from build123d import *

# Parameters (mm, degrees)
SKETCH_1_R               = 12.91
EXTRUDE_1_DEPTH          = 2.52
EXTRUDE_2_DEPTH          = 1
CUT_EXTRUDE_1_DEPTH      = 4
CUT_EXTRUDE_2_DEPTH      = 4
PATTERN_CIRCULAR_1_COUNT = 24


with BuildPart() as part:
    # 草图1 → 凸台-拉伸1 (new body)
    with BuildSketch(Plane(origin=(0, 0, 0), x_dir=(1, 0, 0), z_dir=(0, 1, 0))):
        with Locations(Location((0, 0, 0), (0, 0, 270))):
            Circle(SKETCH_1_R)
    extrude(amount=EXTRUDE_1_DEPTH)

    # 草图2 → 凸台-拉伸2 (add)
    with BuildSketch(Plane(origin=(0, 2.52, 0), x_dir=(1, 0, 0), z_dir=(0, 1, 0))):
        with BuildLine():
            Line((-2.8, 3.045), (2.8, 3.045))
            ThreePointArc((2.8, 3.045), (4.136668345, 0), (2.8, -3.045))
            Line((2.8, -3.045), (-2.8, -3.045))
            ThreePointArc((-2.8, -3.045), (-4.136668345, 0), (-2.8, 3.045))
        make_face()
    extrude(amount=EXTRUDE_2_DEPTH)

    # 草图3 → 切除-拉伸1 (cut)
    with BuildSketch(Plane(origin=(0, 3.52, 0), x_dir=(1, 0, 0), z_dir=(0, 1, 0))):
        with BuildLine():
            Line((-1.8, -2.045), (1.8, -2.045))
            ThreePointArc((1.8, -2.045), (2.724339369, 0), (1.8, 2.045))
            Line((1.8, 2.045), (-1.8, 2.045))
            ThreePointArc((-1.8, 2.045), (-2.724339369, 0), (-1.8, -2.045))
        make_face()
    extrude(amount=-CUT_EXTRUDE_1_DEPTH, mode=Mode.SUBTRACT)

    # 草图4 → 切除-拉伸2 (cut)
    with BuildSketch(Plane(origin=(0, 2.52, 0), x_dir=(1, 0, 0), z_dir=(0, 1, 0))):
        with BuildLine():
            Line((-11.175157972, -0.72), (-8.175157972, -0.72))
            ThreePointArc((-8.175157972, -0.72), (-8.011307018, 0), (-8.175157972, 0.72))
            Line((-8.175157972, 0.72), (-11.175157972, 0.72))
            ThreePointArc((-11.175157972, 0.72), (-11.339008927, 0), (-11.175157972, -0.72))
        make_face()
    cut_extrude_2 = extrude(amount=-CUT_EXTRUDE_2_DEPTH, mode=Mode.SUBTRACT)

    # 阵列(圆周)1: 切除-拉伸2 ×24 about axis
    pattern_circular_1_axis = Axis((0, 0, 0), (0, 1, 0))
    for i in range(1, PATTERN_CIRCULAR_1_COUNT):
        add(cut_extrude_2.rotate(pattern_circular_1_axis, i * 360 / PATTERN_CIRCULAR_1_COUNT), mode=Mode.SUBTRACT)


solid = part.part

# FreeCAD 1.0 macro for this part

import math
import FreeCAD as App
import Part
import Sketcher
from FreeCAD import Vector
Q = App.Units.Quantity

doc = App.newDocument("Part")
body = doc.addObject("PartDesign::Body", "Body")

# Sketch on XZ plane
sketch1 = body.newObject("Sketcher::SketchObject", "Sketch")
sketch1.AttachmentSupport = (doc.getObject("XZ_Plane"), [""])
sketch1.MapMode = "FlatFace"
sketch1.addGeometry(Part.Circle(Vector(0, 0, 0), Vector(0, 0, 1), 13), False)
sketch1.addConstraint([
    Sketcher.Constraint("Coincident", 0, 3, -1, 1),
    Sketcher.Constraint("Diameter", 0, Q("25.82 mm")),
])
pad1 = body.newObject("PartDesign::Pad", "Pad")
pad1.Profile = sketch1
pad1.Length = 2.52
pad1.Reversed = True

# Sketch on XZ plane
sketch2 = body.newObject("Sketcher::SketchObject", "Sketch001")
sketch2.AttachmentSupport = (doc.getObject("XZ_Plane"), [""])
sketch2.MapMode = "FlatFace"
sketch2.AttachmentOffset = App.Placement(Vector(0, 0, -2.52), App.Rotation())
sketch2.addGeometry([
    Part.LineSegment(Vector(2.8, -3, 0), Vector(-2.8, -3, 0)),
    Part.ArcOfCircle(Part.Circle(Vector(0, 0, 0), Vector(0, 0, 1), 4.1), math.radians(133), math.radians(227)),
    Part.LineSegment(Vector(-2.8, 3, 0), Vector(2.8, 3, 0)),
    Part.ArcOfCircle(Part.Circle(Vector(0, 0, 0), Vector(0, 0, 1), 4.1), math.radians(-47), math.radians(47)),
], False)
sketch2.addConstraint([
    Sketcher.Constraint("Coincident", 0, 2, 1, 2),
    Sketcher.Constraint("Coincident", 1, 1, 2, 1),
    Sketcher.Constraint("Coincident", 2, 2, 3, 2),
    Sketcher.Constraint("Coincident", 3, 1, 0, 1),
    Sketcher.Constraint("Horizontal", 0),
    Sketcher.Constraint("Horizontal", 2),
    Sketcher.Constraint("Coincident", 1, 3, -1, 1),
    Sketcher.Constraint("Coincident", 3, 3, -1, 1),
    Sketcher.Constraint("Equal", 1, 3),
    Sketcher.Constraint("Vertical", 0, 2, 1, 1),
    Sketcher.Constraint("DistanceX", 0, 2, 0, 1, Q("5.6 mm")),
    Sketcher.Constraint("Radius", 1, Q("4.136668 mm")),
])
pad2 = body.newObject("PartDesign::Pad", "Pad001")
pad2.Profile = sketch2
pad2.Length = 1
pad2.Reversed = True

# Sketch on XZ plane
sketch3 = body.newObject("Sketcher::SketchObject", "Sketch002")
sketch3.AttachmentSupport = (doc.getObject("XZ_Plane"), [""])
sketch3.MapMode = "FlatFace"
sketch3.AttachmentOffset = App.Placement(Vector(0, 0, -3.52), App.Rotation())
sketch3.addGeometry([
    Part.LineSegment(Vector(-1.8, 2, 0), Vector(1.8, 2, 0)),
    Part.ArcOfCircle(Part.Circle(Vector(0, 0, 0), Vector(0, 0, 1), 2.7), math.radians(-49), math.radians(49)),
    Part.LineSegment(Vector(1.8, -2, 0), Vector(-1.8, -2, 0)),
    Part.ArcOfCircle(Part.Circle(Vector(0, 0, 0), Vector(0, 0, 1), 2.7), math.radians(131), math.radians(229)),
], False)
sketch3.addConstraint([
    Sketcher.Constraint("Coincident", 0, 2, 1, 2),
    Sketcher.Constraint("Coincident", 1, 1, 2, 1),
    Sketcher.Constraint("Coincident", 2, 2, 3, 2),
    Sketcher.Constraint("Coincident", 3, 1, 0, 1),
    Sketcher.Constraint("Horizontal", 0),
    Sketcher.Constraint("Horizontal", 2),
    Sketcher.Constraint("Coincident", 1, 3, -1, 1),
    Sketcher.Constraint("Coincident", 3, 3, -1, 1),
    Sketcher.Constraint("Equal", 1, 3),
    Sketcher.Constraint("Vertical", 0, 2, 1, 1),
    Sketcher.Constraint("DistanceX", 0, 1, 0, 2, Q("3.6 mm")),
    Sketcher.Constraint("Radius", 1, Q("2.724339 mm")),
])
pocket1 = body.newObject("PartDesign::Pocket", "Pocket")
pocket1.Profile = sketch3
pocket1.Length = 4
pocket1.Reversed = True

# Sketch on XZ plane
sketch4 = body.newObject("Sketcher::SketchObject", "Sketch003")
sketch4.AttachmentSupport = (doc.getObject("XZ_Plane"), [""])
sketch4.MapMode = "FlatFace"
sketch4.AttachmentOffset = App.Placement(Vector(0, 0, -2.52), App.Rotation())
sketch4.addGeometry([
    Part.LineSegment(Vector(-11.2, 0.7, 0), Vector(-8.2, 0.7, 0)),
    Part.ArcOfCircle(Part.Circle(Vector(-9.7, 0, 0), Vector(0, 0, 1), 1.7), math.radians(-26), math.radians(26)),
    Part.LineSegment(Vector(-8.2, -0.7, 0), Vector(-11.2, -0.7, 0)),
    Part.ArcOfCircle(Part.Circle(Vector(-9.7, 0, 0), Vector(0, 0, 1), 1.7), math.radians(154), math.radians(206)),
], False)
sketch4.addConstraint([
    Sketcher.Constraint("Coincident", 0, 2, 1, 2),
    Sketcher.Constraint("Coincident", 1, 1, 2, 1),
    Sketcher.Constraint("Coincident", 2, 2, 3, 2),
    Sketcher.Constraint("Coincident", 3, 1, 0, 1),
    Sketcher.Constraint("Horizontal", 0),
    Sketcher.Constraint("Horizontal", 2),
    Sketcher.Constraint("Coincident", 3, 3, 1, 3),
    Sketcher.Constraint("Equal", 1, 3),
    Sketcher.Constraint("Symmetric", 0, 2, 1, 1, -1),
    Sketcher.Constraint("DistanceX", 0, 1, 0, 2, Q("3 mm")),
    Sketcher.Constraint("DistanceY", -1, 1, 0, 2, Q("0.72 mm")),
    Sketcher.Constraint("DistanceX", 1, 3, -1, 1, Q("9.675158 mm")),
])
pocket2 = body.newObject("PartDesign::Pocket", "Pocket001")
pocket2.Profile = sketch4
pocket2.Length = 4
pocket2.Reversed = True
doc.recompute()

polarpattern = body.newObject("PartDesign::PolarPattern", "PolarPattern")
polarpattern.Originals = [pocket2]
polarpattern.Axis = (doc.getObject("Y_Axis"), [""])
polarpattern.Angle = 360
polarpattern.Occurrences = 24
body.Tip = polarpattern

doc.recompute()
